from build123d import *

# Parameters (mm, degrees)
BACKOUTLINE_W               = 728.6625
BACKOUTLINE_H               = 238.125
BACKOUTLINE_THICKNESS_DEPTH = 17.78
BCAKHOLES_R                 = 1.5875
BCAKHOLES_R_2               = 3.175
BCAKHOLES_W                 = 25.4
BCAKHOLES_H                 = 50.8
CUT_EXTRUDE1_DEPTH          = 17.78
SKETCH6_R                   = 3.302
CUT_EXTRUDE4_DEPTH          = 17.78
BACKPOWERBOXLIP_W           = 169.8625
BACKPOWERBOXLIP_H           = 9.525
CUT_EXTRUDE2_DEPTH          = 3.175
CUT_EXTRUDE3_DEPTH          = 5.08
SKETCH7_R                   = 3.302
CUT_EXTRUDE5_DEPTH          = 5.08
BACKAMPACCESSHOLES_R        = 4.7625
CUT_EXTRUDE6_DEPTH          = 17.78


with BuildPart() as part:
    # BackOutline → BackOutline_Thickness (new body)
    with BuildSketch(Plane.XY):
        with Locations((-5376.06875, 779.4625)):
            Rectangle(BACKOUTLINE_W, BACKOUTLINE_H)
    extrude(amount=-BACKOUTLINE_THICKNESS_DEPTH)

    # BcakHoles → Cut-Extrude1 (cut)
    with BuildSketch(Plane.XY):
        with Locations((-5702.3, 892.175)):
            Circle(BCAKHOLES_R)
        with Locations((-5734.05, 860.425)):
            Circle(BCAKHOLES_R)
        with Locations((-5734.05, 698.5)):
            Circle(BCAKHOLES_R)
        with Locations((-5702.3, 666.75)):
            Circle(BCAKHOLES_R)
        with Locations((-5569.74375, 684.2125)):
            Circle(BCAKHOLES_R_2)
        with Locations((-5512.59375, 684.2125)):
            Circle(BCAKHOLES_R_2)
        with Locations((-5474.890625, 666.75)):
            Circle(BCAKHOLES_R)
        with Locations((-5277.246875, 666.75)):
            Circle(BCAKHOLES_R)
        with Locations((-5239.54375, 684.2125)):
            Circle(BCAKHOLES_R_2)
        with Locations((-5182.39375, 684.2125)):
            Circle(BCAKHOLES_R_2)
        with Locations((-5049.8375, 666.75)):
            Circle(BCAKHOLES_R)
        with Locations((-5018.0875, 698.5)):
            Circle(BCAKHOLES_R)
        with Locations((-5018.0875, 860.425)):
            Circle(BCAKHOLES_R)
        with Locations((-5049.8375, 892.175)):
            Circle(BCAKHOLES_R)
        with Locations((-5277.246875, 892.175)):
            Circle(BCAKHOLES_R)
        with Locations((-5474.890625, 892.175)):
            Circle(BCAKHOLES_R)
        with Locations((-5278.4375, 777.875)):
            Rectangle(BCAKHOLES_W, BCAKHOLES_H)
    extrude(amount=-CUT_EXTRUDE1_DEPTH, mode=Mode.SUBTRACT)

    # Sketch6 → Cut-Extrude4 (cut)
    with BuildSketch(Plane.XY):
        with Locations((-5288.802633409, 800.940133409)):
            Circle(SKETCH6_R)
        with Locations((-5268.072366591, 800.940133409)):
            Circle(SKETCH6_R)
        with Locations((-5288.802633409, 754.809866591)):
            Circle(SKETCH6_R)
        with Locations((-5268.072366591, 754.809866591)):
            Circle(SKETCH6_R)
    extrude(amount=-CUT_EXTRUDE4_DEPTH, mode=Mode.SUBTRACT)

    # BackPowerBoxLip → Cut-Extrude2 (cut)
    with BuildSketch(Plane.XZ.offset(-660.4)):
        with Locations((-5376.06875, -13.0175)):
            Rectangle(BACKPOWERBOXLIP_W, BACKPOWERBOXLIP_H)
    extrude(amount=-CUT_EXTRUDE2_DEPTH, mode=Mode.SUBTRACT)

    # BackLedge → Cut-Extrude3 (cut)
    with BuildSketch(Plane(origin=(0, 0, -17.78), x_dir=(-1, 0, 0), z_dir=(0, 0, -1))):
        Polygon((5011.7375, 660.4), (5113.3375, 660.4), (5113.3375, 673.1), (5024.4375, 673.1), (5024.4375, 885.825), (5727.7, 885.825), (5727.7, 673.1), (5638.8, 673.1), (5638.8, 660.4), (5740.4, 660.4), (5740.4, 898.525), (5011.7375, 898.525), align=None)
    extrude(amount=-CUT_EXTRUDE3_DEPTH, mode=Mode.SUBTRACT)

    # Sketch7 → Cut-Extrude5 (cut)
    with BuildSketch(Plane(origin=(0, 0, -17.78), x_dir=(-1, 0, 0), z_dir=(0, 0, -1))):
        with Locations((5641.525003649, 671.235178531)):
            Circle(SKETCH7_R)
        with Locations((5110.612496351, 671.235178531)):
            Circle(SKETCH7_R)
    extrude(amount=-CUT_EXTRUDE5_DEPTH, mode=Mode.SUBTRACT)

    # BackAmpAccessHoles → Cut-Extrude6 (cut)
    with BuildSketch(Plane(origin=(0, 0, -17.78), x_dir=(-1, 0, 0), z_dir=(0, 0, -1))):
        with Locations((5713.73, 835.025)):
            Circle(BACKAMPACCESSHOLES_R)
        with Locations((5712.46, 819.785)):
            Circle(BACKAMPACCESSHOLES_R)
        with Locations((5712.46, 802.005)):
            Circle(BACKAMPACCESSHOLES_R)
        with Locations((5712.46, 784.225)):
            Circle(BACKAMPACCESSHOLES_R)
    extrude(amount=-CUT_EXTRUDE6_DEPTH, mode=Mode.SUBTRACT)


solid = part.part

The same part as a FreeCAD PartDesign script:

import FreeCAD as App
import Part
import Sketcher
from FreeCAD import Vector
Q = App.Units.Quantity

doc = App.newDocument("Part")
body = doc.addObject("PartDesign::Body", "Body")

sketch1 = body.newObject("Sketcher::SketchObject", "Sketch")
sketch1.AttachmentSupport = (doc.getObject("XY_Plane"), [""])
sketch1.MapMode = "FlatFace"
sketch1.addGeometry([
    Part.LineSegment(Vector(-5740, 899, 0), Vector(-5740, 660, 0)),
    Part.LineSegment(Vector(-5740, 660, 0), Vector(-5012, 660, 0)),
    Part.LineSegment(Vector(-5012, 660, 0), Vector(-5012, 899, 0)),
    Part.LineSegment(Vector(-5012, 899, 0), Vector(-5740, 899, 0)),
], False)
sketch1.addConstraint([
    Sketcher.Constraint("Coincident", 0, 2, 1, 1),
    Sketcher.Constraint("Coincident", 1, 2, 2, 1),
    Sketcher.Constraint("Coincident", 2, 2, 3, 1),
    Sketcher.Constraint("Coincident", 3, 2, 0, 1),
    Sketcher.Constraint("Vertical", 0),
    Sketcher.Constraint("Horizontal", 1),
    Sketcher.Constraint("Vertical", 2),
    Sketcher.Constraint("Horizontal", 3),
    Sketcher.Constraint("DistanceX", 0, 2, -1, 1, Q("226 in")),
    Sketcher.Constraint("DistanceY", -1, 1, 0, 2, Q("26 in")),
    Sketcher.Constraint("DistanceX", 1, 1, 1, 2, Q("28.6875 in")),
    Sketcher.Constraint("DistanceY", 0, 2, 0, 1, Q("9.375 in")),
])
pad1 = body.newObject("PartDesign::Pad", "Pad")
pad1.Profile = sketch1
pad1.Length = Q("0.7 in")
pad1.Reversed = True

sketch2 = body.newObject("Sketcher::SketchObject", "Sketch001")
sketch2.AttachmentSupport = (doc.getObject("XY_Plane"), [""])
sketch2.MapMode = "FlatFace"
sketch2.addGeometry([
    Part.Circle(Vector(-5702.3, 892.2, 0), Vector(0, 0, 1), 1.6),
    Part.Circle(Vector(-5734.1, 860.4, 0), Vector(0, 0, 1), 1.6),
    Part.Circle(Vector(-5734.1, 698.5, 0), Vector(0, 0, 1), 1.6),
    Part.Circle(Vector(-5702.3, 666.8, 0), Vector(0, 0, 1), 1.6),
    Part.Circle(Vector(-5569.7, 684.2, 0), Vector(0, 0, 1), 3.2),
    Part.Circle(Vector(-5512.6, 684.2, 0), Vector(0, 0, 1), 3.2),
    Part.Circle(Vector(-5474.9, 666.8, 0), Vector(0, 0, 1), 1.6),
    Part.Circle(Vector(-5277.2, 666.8, 0), Vector(0, 0, 1), 1.6),
    Part.Circle(Vector(-5239.5, 684.2, 0), Vector(0, 0, 1), 3.2),
    Part.Circle(Vector(-5182.4, 684.2, 0), Vector(0, 0, 1), 3.2),
    Part.Circle(Vector(-5049.8, 666.8, 0), Vector(0, 0, 1), 1.6),
    Part.Circle(Vector(-5018.1, 698.5, 0), Vector(0, 0, 1), 1.6),
    Part.Circle(Vector(-5018.1, 860.4, 0), Vector(0, 0, 1), 1.6),
    Part.Circle(Vector(-5049.8, 892.2, 0), Vector(0, 0, 1), 1.6),
    Part.Circle(Vector(-5277.2, 892.2, 0), Vector(0, 0, 1), 1.6),
    Part.Circle(Vector(-5474.9, 892.2, 0), Vector(0, 0, 1), 1.6),
    Part.LineSegment(Vector(-5291.1, 803.3, 0), Vector(-5291.1, 752.5, 0)),
    Part.LineSegment(Vector(-5291.1, 752.5, 0), Vector(-5265.7, 752.5, 0)),
    Part.LineSegment(Vector(-5265.7, 752.5, 0), Vector(-5265.7, 803.3, 0)),
    Part.LineSegment(Vector(-5265.7, 803.3, 0), Vector(-5291.1, 803.3, 0)),
], False)
sketch2.addConstraint([
    Sketcher.Constraint("Coincident", 16, 2, 17, 1),
    Sketcher.Constraint("Coincident", 17, 2, 18, 1),
    Sketcher.Constraint("Coincident", 18, 2, 19, 1),
    Sketcher.Constraint("Coincident", 19, 2, 16, 1),
    Sketcher.Constraint("Vertical", 16),
    Sketcher.Constraint("Horizontal", 17),
    Sketcher.Constraint("Vertical", 18),
    Sketcher.Constraint("Horizontal", 19),
    Sketcher.Constraint("Equal", 0, 1),
    Sketcher.Constraint("Equal", 1, 2),
    Sketcher.Constraint("Equal", 2, 3),
    Sketcher.Constraint("Equal", 4, 5),
    Sketcher.Constraint("Equal", 3, 6),
    Sketcher.Constraint("Equal", 6, 7),
    Sketcher.Constraint("Equal", 5, 8),
    Sketcher.Constraint("Equal", 8, 9),
    Sketcher.Constraint("Equal", 7, 10),
    Sketcher.Constraint("Equal", 10, 11),
    Sketcher.Constraint("Equal", 11, 12),
    Sketcher.Constraint("Equal", 12, 13),
    Sketcher.Constraint("Equal", 13, 14),
    Sketcher.Constraint("Equal", 14, 15),
    Sketcher.Constraint("Horizontal", 4, 3, 5, 3),
    Sketcher.Constraint("Horizontal", 3, 3, 6, 3),
    Sketcher.Constraint("Horizontal", 6, 3, 7, 3),
    Sketcher.Constraint("Horizontal", 5, 3, 8, 3),
    Sketcher.Constraint("Horizontal", 8, 3, 9, 3),
    Sketcher.Constraint("Horizontal", 7, 3, 10, 3),
    Sketcher.Constraint("Horizontal", 2, 3, 11, 3),
    Sketcher.Constraint("Horizontal", 1, 3, 12, 3),
    Sketcher.Constraint("Horizontal", 0, 3, 13, 3),
    Sketcher.Constraint("Horizontal", 13, 3, 14, 3),
    Sketcher.Constraint("Horizontal", 14, 3, 15, 3),
    Sketcher.Constraint("Vertical", 1, 3, 2, 3),
    Sketcher.Constraint("Vertical", 0, 3, 3, 3),
    Sketcher.Constraint("Vertical", 11, 3, 12, 3),
    Sketcher.Constraint("Vertical", 10, 3, 13, 3),
    Sketcher.Constraint("Vertical", 7, 3, 14, 3),
    Sketcher.Constraint("Vertical", 6, 3, 15, 3),
    Sketcher.Constraint("Diameter", 4, Q("0.25 in")),
    Sketcher.Constraint("DistanceX", 17, 1, 17, 2, Q("1 in")),
    Sketcher.Constraint("DistanceY", 16, 2, 16, 1, Q("2 in")),
    Sketcher.Constraint("Diameter", 0, Q("0.125 in")),
    Sketcher.Constraint("DistanceX", 4, 3, 8, 3, Q("13 in")),
    Sketcher.Constraint("DistanceX", 5, 3, 9, 3, Q("13 in")),
    Sketcher.Constraint("DistanceX", 0, 3, -1, 1, Q("224.5 in")),
    Sketcher.Constraint("DistanceY", -1, 1, 2, 3, Q("27.5 in")),
    Sketcher.Constraint("DistanceY", 16, 2, 14, 3, Q("5.5 in")),
    Sketcher.Constraint("DistanceX", 1, 3, -1, 1, Q("225.75 in")),
    Sketcher.Constraint("DistanceY", -1, 1, 3, 3, Q("26.25 in")),
    Sketcher.Constraint("DistanceY", 1, 3, 0, 3, Q("1.25 in")),
    Sketcher.Constraint("DistanceX", 4, 3, 5, 3, Q("2.25 in")),
    Sketcher.Constraint("DistanceX", 10, 3, 11, 3, Q("1.25 in")),
    Sketcher.Constraint("DistanceY", -1, 1, 0, 3, Q("35.125 in")),
    Sketcher.Constraint("DistanceX", 4, 3, -1, 1, Q("219.28125 in")),
    Sketcher.Constraint("DistanceY", -1, 1, 4, 3, Q("26.9375 in")),
    Sketcher.Constraint("DistanceX", 6, 3, -1, 1, Q("215.546875 in")),
    Sketcher.Constraint("DistanceX", 7, 3, -1, 1, Q("207.765625 in")),
    Sketcher.Constraint("DistanceX", 10, 3, -1, 1, Q("198.8125 in")),
    Sketcher.Constraint("DistanceX", 16, 2, -1, 1, Q("208.3125 in")),
])
pocket1 = body.newObject("PartDesign::Pocket", "Pocket")
pocket1.Profile = sketch2
pocket1.Length = Q("0.7 in")

sketch3 = body.newObject("Sketcher::SketchObject", "Sketch002")
sketch3.AttachmentSupport = (doc.getObject("XY_Plane"), [""])
sketch3.MapMode = "FlatFace"
sketch3.addGeometry([
    Part.Circle(Vector(-5288.8, 800.9, 0), Vector(0, 0, 1), 3.3),
    Part.Circle(Vector(-5268.1, 800.9, 0), Vector(0, 0, 1), 3.3),
    Part.Circle(Vector(-5288.8, 754.8, 0), Vector(0, 0, 1), 3.3),
    Part.Circle(Vector(-5268.1, 754.8, 0), Vector(0, 0, 1), 3.3),
], False)
sketch3.addConstraint([
    Sketcher.Constraint("Equal", 0, 1),
    Sketcher.Constraint("Equal", 1, 2),
    Sketcher.Constraint("Equal", 2, 3),
    Sketcher.Constraint("Horizontal", 0, 3, 1, 3),
    Sketcher.Constraint("Horizontal", 2, 3, 3, 3),
    Sketcher.Constraint("Vertical", 0, 3, 2, 3),
    Sketcher.Constraint("Vertical", 1, 3, 3, 3),
    Sketcher.Constraint("Diameter", 0, Q("0.26 in")),
    Sketcher.Constraint("DistanceX", 0, 3, -1, 1, Q("5288.802633 mm")),
    Sketcher.Constraint("DistanceY", -1, 1, 0, 3, Q("800.940133 mm")),
    Sketcher.Constraint("DistanceX", 1, 3, -1, 1, Q("5268.072367 mm")),
    Sketcher.Constraint("DistanceY", -1, 1, 2, 3, Q("754.809867 mm")),
])
pocket2 = body.newObject("PartDesign::Pocket", "Pocket001")
pocket2.Profile = sketch3
pocket2.Length = Q("0.7 in")

sketch4 = body.newObject("Sketcher::SketchObject", "Sketch003")
sketch4.AttachmentSupport = (doc.getObject("XZ_Plane"), [""])
sketch4.MapMode = "FlatFace"
sketch4.AttachmentOffset = App.Placement(Vector(0, 0, -26 * 25.4), App.Rotation())
sketch4.addGeometry([
    Part.LineSegment(Vector(-5461, -8, 0), Vector(-5461, -18, 0)),
    Part.LineSegment(Vector(-5461, -18, 0), Vector(-5291, -18, 0)),
    Part.LineSegment(Vector(-5291, -18, 0), Vector(-5291, -8, 0)),
    Part.LineSegment(Vector(-5291, -8, 0), Vector(-5461, -8, 0)),
], False)
sketch4.addConstraint([
    Sketcher.Constraint("Coincident", 0, 2, 1, 1),
    Sketcher.Constraint("Coincident", 1, 2, 2, 1),
    Sketcher.Constraint("Coincident", 2, 2, 3, 1),
    Sketcher.Constraint("Coincident", 3, 2, 0, 1),
    Sketcher.Constraint("Vertical", 0),
    Sketcher.Constraint("Horizontal", 1),
    Sketcher.Constraint("Vertical", 2),
    Sketcher.Constraint("Horizontal", 3),
    Sketcher.Constraint("DistanceX", 0, 2, -1, 1, Q("215 in")),
    Sketcher.Constraint("DistanceY", 0, 2, -1, 1, Q("0.7 in")),
    Sketcher.Constraint("DistanceX", 1, 1, 1, 2, Q("6.6875 in")),
    Sketcher.Constraint("DistanceY", 0, 2, 0, 1, Q("0.375 in")),
])
pocket3 = body.newObject("PartDesign::Pocket", "Pocket002")
pocket3.Profile = sketch4
pocket3.Length = Q("0.125 in")

sketch5 = body.newObject("Sketcher::SketchObject", "Sketch004")
sketch5.AttachmentSupport = (doc.getObject("XY_Plane"), [""])
sketch5.MapMode = "FlatFace"
sketch5.AttachmentOffset = App.Placement(Vector(0, 0, -0.7 * 25.4), App.Rotation())
sketch5.addGeometry([
    Part.LineSegment(Vector(-5012, 660, 0), Vector(-5113, 660, 0)),
    Part.LineSegment(Vector(-5113, 660, 0), Vector(-5113, 673, 0)),
    Part.LineSegment(Vector(-5113, 673, 0), Vector(-5024, 673, 0)),
    Part.LineSegment(Vector(-5024, 673, 0), Vector(-5024, 886, 0)),
    Part.LineSegment(Vector(-5024, 886, 0), Vector(-5728, 886, 0)),
    Part.LineSegment(Vector(-5728, 886, 0), Vector(-5728, 673, 0)),
    Part.LineSegment(Vector(-5728, 673, 0), Vector(-5639, 673, 0)),
    Part.LineSegment(Vector(-5639, 673, 0), Vector(-5639, 660, 0)),
    Part.LineSegment(Vector(-5639, 660, 0), Vector(-5740, 660, 0)),
    Part.LineSegment(Vector(-5740, 660, 0), Vector(-5740, 899, 0)),
    Part.LineSegment(Vector(-5740, 899, 0), Vector(-5012, 899, 0)),
    Part.LineSegment(Vector(-5012, 899, 0), Vector(-5012, 660, 0)),
], False)
sketch5.addConstraint([
    Sketcher.Constraint("Coincident", 0, 2, 1, 1),
    Sketcher.Constraint("Coincident", 1, 2, 2, 1),
    Sketcher.Constraint("Coincident", 2, 2, 3, 1),
    Sketcher.Constraint("Coincident", 3, 2, 4, 1),
    Sketcher.Constraint("Coincident", 4, 2, 5, 1),
    Sketcher.Constraint("Coincident", 5, 2, 6, 1),
    Sketcher.Constraint("Coincident", 6, 2, 7, 1),
    Sketcher.Constraint("Coincident", 7, 2, 8, 1),
    Sketcher.Constraint("Coincident", 8, 2, 9, 1),
    Sketcher.Constraint("Coincident", 9, 2, 10, 1),
    Sketcher.Constraint("Coincident", 10, 2, 11, 1),
    Sketcher.Constraint("Coincident", 11, 2, 0, 1),
    Sketcher.Constraint("Horizontal", 0),
    Sketcher.Constraint("Vertical", 1),
    Sketcher.Constraint("Horizontal", 2),
    Sketcher.Constraint("Vertical", 3),
    Sketcher.Constraint("Horizontal", 4),
    Sketcher.Constraint("Vertical", 5),
    Sketcher.Constraint("Horizontal", 6),
    Sketcher.Constraint("Vertical", 7),
    Sketcher.Constraint("Horizontal", 8),
    Sketcher.Constraint("Vertical", 9),
    Sketcher.Constraint("Horizontal", 10),
    Sketcher.Constraint("Vertical", 11),
    Sketcher.Constraint("Horizontal", 2, 2, 5, 2),
    Sketcher.Constraint("Horizontal", 0, 2, 7, 2),
    Sketcher.Constraint("Equal", 2, 6),
    Sketcher.Constraint("Equal", 0, 8),
    Sketcher.Constraint("DistanceX", 0, 2, 0, 1, Q("4 in")),
    Sketcher.Constraint("DistanceX", 2, 1, 2, 2, Q("3.5 in")),
    Sketcher.Constraint("DistanceY", 1, 1, 1, 2, Q("0.5 in")),
    Sketcher.Constraint("DistanceY", -1, 1, 0, 2, Q("26 in")),
    Sketcher.Constraint("DistanceX", 6, 2, -1, 1, Q("222 in")),
    Sketcher.Constraint("DistanceY", 4, 2, 9, 2, Q("0.5 in")),
    Sketcher.Constraint("DistanceX", 4, 2, 4, 1, Q("27.6875 in")),
    Sketcher.Constraint("DistanceY", 3, 1, 3, 2, Q("8.375 in")),
])
pocket4 = body.newObject("PartDesign::Pocket", "Pocket003")
pocket4.Profile = sketch5
pocket4.Length = Q("0.2 in")
pocket4.Reversed = True

sketch6 = body.newObject("Sketcher::SketchObject", "Sketch005")
sketch6.AttachmentSupport = (doc.getObject("XY_Plane"), [""])
sketch6.MapMode = "FlatFace"
sketch6.AttachmentOffset = App.Placement(Vector(0, 0, -0.7 * 25.4), App.Rotation())
sketch6.addGeometry([
    Part.Circle(Vector(-5641.5, 671.2, 0), Vector(0, 0, 1), 3.3),
    Part.Circle(Vector(-5110.6, 671.2, 0), Vector(0, 0, 1), 3.3),
], False)
sketch6.addConstraint([
    Sketcher.Constraint("Equal", 0, 1),
    Sketcher.Constraint("Horizontal", 0, 3, 1, 3),
    Sketcher.Constraint("Diameter", 0, Q("0.26 in")),
    Sketcher.Constraint("DistanceY", -1, 1, 0, 3, Q("671.235179 mm")),
    Sketcher.Constraint("DistanceX", 0, 3, -1, 1, Q("5641.525004 mm")),
    Sketcher.Constraint("DistanceX", 1, 3, -1, 1, Q("5110.612496 mm")),
])
pocket5 = body.newObject("PartDesign::Pocket", "Pocket004")
pocket5.Profile = sketch6
pocket5.Length = Q("0.2 in")
pocket5.Reversed = True

sketch7 = body.newObject("Sketcher::SketchObject", "Sketch006")
sketch7.AttachmentSupport = (doc.getObject("XY_Plane"), [""])
sketch7.MapMode = "FlatFace"
sketch7.AttachmentOffset = App.Placement(Vector(0, 0, -0.7 * 25.4), App.Rotation())
sketch7.addGeometry([
    Part.Circle(Vector(-5713.7, 835, 0), Vector(0, 0, 1), 4.8),
    Part.Circle(Vector(-5712.5, 819.8, 0), Vector(0, 0, 1), 4.8),
    Part.Circle(Vector(-5712.5, 802, 0), Vector(0, 0, 1), 4.8),
    Part.Circle(Vector(-5712.5, 784.2, 0), Vector(0, 0, 1), 4.8),
], False)
sketch7.addConstraint([
    Sketcher.Constraint("Equal", 0, 1),
    Sketcher.Constraint("Equal", 1, 2),
    Sketcher.Constraint("Equal", 2, 3),
    Sketcher.Constraint("Vertical", 1, 3, 2, 3),
    Sketcher.Constraint("Vertical", 2, 3, 3, 3),
    Sketcher.Constraint("Diameter", 0, Q("0.375 in")),
    Sketcher.Constraint("DistanceY", 3, 3, 0, 3, Q("2 in")),
    Sketcher.Constraint("DistanceX", 1, 3, -1, 1, Q("224.9 in")),
    Sketcher.Constraint("DistanceY", 1, 3, 0, 3, Q("0.6 in")),
    Sketcher.Constraint("DistanceY", 2, 3, 1, 3, Q("0.7 in")),
    Sketcher.Constraint("DistanceX", 0, 3, -1, 1, Q("224.95 in")),
    Sketcher.Constraint("DistanceY", -1, 1, 0, 3, Q("32.875 in")),
])
pocket6 = body.newObject("PartDesign::Pocket", "Pocket005")
pocket6.Profile = sketch7
pocket6.Length = Q("0.7 in")
pocket6.Reversed = True

doc.recompute()
